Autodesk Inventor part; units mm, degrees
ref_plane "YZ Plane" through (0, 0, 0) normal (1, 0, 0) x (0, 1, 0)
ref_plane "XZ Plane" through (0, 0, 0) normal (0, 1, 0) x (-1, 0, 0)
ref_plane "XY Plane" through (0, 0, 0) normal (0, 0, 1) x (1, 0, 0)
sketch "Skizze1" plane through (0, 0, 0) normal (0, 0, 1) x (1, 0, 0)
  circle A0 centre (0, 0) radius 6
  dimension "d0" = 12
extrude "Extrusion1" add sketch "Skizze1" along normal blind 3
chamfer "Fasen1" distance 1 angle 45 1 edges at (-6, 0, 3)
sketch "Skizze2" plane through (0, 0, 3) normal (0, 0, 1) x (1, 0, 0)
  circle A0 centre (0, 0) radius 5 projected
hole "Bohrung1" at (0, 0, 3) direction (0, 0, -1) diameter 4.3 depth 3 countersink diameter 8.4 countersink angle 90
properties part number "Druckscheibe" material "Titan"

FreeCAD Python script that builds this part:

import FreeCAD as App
import Part
import Sketcher
Q = App.Units.Quantity


def edges_at(feature, points):
    """Names of the edges that pass closest to the given points."""
    edges = feature.Shape.Edges
    near = lambda p: min(range(len(edges)), key=lambda i: edges[i].distToShape(Part.Vertex(*p))[0])
    return sorted({f"Edge{near(p) + 1}" for p in points})

doc = App.newDocument("Part")
body = doc.addObject("PartDesign::Body", "Body")

# Sketch on XY plane
sketch1 = body.newObject("Sketcher::SketchObject", "Sketch")
sketch1.AttachmentSupport = (doc.getObject("XY_Plane"), [""])
sketch1.MapMode = "FlatFace"
sketch1.addGeometry(Part.Circle(App.Vector(0, 0, 0), App.Vector(0, 0, 1), 6), False)
sketch1.addConstraint([
    Sketcher.Constraint("Coincident", 0, 3, -1, 1),
    Sketcher.Constraint("Diameter", 0, Q("12 mm")),
])
pad1 = body.newObject("PartDesign::Pad", "Pad")
pad1.Profile = sketch1
pad1.Length = 3
doc.recompute()

chamfer = body.newObject("PartDesign::Chamfer", "Chamfer")
chamfer.Base = (pad1, edges_at(pad1, [(-6, 0, 3)]))
chamfer.Size = 1

# Sketch on XY plane
sketch2 = body.newObject("Sketcher::SketchObject", "Sketch001")
sketch2.AttachmentSupport = (doc.getObject("XY_Plane"), [""])
sketch2.MapMode = "FlatFace"
sketch2.AttachmentOffset = App.Placement(App.Vector(0, 0, 3), App.Rotation())
sketch2.addGeometry(Part.Circle(App.Vector(0, 0, 0), App.Vector(0, 0, 1), 2.1), False)
sketch2.addConstraint([
    Sketcher.Constraint("Coincident", 0, 3, -1, 1),
    Sketcher.Constraint("Diameter", 0, Q("4.3 mm")),
])
doc.recompute()
hole = body.newObject("PartDesign::Hole", "Hole")
hole.Profile = sketch2
hole.ThreadType = "None"
hole.Diameter = 4.3
hole.DepthType = "Dimension"
hole.Depth = 3
hole.DrillPoint = "Flat"
hole.HoleCutType = "Countersink"
hole.HoleCutDiameter = 8.4
hole.HoleCutCountersinkAngle = 90

doc.recompute()
